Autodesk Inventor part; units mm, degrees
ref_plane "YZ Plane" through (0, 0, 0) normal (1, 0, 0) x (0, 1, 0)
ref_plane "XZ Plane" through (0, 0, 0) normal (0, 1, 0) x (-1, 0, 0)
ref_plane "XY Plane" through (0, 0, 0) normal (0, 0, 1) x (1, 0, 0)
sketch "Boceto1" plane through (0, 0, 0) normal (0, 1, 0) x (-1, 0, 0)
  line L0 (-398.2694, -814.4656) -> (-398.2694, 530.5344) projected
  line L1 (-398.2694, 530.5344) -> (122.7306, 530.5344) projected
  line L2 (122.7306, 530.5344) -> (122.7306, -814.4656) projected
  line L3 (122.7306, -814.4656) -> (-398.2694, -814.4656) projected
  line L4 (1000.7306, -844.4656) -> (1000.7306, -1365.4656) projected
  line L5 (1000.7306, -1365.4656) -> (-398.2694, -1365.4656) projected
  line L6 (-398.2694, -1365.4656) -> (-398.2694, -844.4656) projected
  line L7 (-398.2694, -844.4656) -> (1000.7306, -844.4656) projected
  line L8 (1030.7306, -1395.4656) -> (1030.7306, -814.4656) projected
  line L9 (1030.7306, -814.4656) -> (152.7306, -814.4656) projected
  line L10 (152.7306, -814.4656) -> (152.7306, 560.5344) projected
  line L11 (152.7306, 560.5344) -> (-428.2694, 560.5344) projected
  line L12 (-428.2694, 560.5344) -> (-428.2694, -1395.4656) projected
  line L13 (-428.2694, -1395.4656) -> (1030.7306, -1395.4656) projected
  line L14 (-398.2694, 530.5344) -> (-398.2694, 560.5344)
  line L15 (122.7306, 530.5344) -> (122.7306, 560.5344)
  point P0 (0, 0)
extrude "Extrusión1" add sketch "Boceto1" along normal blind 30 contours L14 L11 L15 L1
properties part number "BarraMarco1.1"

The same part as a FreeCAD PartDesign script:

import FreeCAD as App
import Part
import Sketcher

V = App.Vector


def add_polygon(sketch, points):
    """Adds a closed chain of lines whose ends are joined by coincident constraints."""
    first, n = sketch.GeometryCount, len(points)
    for a, b in zip(points, points[1:] + points[:1]):
        sketch.addGeometry(Part.LineSegment(App.Vector(*a, 0), App.Vector(*b, 0)), False)
    for i in range(n):
        sketch.addConstraint(Sketcher.Constraint("Coincident", first + i, 2, first + (i + 1) % n, 1))

doc = App.newDocument("Part")
body = doc.addObject("PartDesign::Body", "Body")

# Sketch on XZ plane
sketch1 = body.newObject("Sketcher::SketchObject", "Sketch")
sketch1.AttachmentSupport = (doc.getObject("XZ_Plane"), [""])
sketch1.MapMode = "FlatFace"
add_polygon(sketch1, [(398, 561), (398, 531), (-123, 531), (-123, 561)])  # lines 0-3
sketch1.addConstraint([
    Sketcher.Constraint("Vertical", 0),
    Sketcher.Constraint("Horizontal", 1),
    Sketcher.Constraint("Vertical", 2),
    Sketcher.Constraint("Horizontal", 3),
    Sketcher.Constraint("DistanceX", 1, 2, 1, 1, 521.0),
    Sketcher.Constraint("DistanceY", 0, 2, 0, 1, 30.0),
    Sketcher.Constraint("DistanceX", -1, 1, 0, 2, 398.2694),
    Sketcher.Constraint("DistanceY", -1, 1, 0, 2, 530.5344),
])
pad1 = body.newObject("PartDesign::Pad", "Pad")
pad1.Profile = sketch1
pad1.Length = 30
pad1.Reversed = True

doc.recompute()
